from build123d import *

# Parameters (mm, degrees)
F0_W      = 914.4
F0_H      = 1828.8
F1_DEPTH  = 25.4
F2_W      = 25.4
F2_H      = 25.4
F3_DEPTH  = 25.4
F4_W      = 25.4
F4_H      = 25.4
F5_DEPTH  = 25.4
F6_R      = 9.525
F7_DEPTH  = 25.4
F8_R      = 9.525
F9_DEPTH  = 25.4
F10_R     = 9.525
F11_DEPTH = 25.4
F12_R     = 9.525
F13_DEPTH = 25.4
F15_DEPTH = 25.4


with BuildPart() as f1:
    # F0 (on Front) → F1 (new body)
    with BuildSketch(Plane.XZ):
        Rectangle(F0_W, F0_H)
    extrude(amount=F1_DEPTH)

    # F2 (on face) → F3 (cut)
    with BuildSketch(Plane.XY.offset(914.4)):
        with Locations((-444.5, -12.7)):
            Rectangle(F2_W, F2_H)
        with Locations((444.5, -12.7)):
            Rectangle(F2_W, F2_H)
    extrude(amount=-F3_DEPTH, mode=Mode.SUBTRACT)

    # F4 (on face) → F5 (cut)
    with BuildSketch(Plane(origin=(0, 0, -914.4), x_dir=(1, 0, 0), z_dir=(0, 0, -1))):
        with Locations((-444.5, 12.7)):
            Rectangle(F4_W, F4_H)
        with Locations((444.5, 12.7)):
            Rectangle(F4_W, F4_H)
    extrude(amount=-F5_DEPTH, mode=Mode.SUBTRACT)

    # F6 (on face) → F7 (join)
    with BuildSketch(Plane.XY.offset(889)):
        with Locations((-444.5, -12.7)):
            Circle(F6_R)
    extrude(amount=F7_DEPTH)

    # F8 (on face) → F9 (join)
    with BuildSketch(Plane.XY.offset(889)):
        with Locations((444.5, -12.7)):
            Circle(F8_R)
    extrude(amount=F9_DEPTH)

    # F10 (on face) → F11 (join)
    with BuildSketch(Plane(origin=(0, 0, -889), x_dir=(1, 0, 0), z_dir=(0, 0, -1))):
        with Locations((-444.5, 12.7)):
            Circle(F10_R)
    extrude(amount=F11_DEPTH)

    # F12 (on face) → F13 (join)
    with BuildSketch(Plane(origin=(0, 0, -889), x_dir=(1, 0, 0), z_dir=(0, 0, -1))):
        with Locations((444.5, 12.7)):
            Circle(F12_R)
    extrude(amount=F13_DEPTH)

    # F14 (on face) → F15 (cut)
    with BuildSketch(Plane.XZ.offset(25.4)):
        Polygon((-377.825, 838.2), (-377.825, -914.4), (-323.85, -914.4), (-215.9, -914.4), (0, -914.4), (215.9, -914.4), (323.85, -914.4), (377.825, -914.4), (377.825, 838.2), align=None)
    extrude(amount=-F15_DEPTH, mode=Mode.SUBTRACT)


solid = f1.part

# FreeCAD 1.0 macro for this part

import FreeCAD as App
import Part
import Sketcher

V = App.Vector
Q = App.Units.Quantity

doc = App.newDocument("Part")
body = doc.addObject("PartDesign::Body", "Body")

# Sketch on XZ plane
sketch1 = body.newObject("Sketcher::SketchObject", "Sketch")
sketch1.AttachmentSupport = (doc.getObject("XZ_Plane"), [""])
sketch1.MapMode = "FlatFace"
sketch1.addGeometry(Part.LineSegment(V(-457, 914, 0), V(-457, -914, 0)), False)
sketch1.addGeometry(Part.LineSegment(V(-457, -914, 0), V(457, -914, 0)), False)
sketch1.addGeometry(Part.LineSegment(V(457, -914, 0), V(457, 914, 0)), False)
sketch1.addGeometry(Part.LineSegment(V(457, 914, 0), V(-457, 914, 0)), False)
sketch1.addConstraint(Sketcher.Constraint("Coincident", 0, 2, 1, 1))
sketch1.addConstraint(Sketcher.Constraint("Coincident", 1, 2, 2, 1))
sketch1.addConstraint(Sketcher.Constraint("Coincident", 2, 2, 3, 1))
sketch1.addConstraint(Sketcher.Constraint("Coincident", 3, 2, 0, 1))
sketch1.addConstraint(Sketcher.Constraint("Vertical", 0))
sketch1.addConstraint(Sketcher.Constraint("Horizontal", 1))
sketch1.addConstraint(Sketcher.Constraint("Vertical", 2))
sketch1.addConstraint(Sketcher.Constraint("Horizontal", 3))
sketch1.addConstraint(Sketcher.Constraint("Symmetric", 0, 2, 2, 2, -1, 1))
sketch1.addConstraint(Sketcher.Constraint("DistanceX", 1, 1, 1, 2, Q("36 in")))
sketch1.addConstraint(Sketcher.Constraint("DistanceY", 0, 2, 0, 1, Q("72 in")))
pad1 = body.newObject("PartDesign::Pad", "Pad")
pad1.Profile = sketch1
pad1.Length = Q("1 in")

# Sketch on XY plane
sketch2 = body.newObject("Sketcher::SketchObject", "Sketch001")
sketch2.AttachmentSupport = (doc.getObject("XY_Plane"), [""])
sketch2.MapMode = "FlatFace"
sketch2.AttachmentOffset = App.Placement(V(0, 0, 36 * 25.4), App.Rotation())
sketch2.addGeometry(Part.LineSegment(V(-457, 0, 0), V(-457, -25, 0)), False)
sketch2.addGeometry(Part.LineSegment(V(-457, -25, 0), V(-432, -25, 0)), False)
sketch2.addGeometry(Part.LineSegment(V(-432, -25, 0), V(-432, 0, 0)), False)
sketch2.addGeometry(Part.LineSegment(V(-432, 0, 0), V(-457, 0, 0)), False)
sketch2.addGeometry(Part.LineSegment(V(432, 0, 0), V(432, -25, 0)), False)
sketch2.addGeometry(Part.LineSegment(V(432, -25, 0), V(457, -25, 0)), False)
sketch2.addGeometry(Part.LineSegment(V(457, -25, 0), V(457, 0, 0)), False)
sketch2.addGeometry(Part.LineSegment(V(457, 0, 0), V(432, 0, 0)), False)
sketch2.addConstraint(Sketcher.Constraint("Coincident", 0, 2, 1, 1))
sketch2.addConstraint(Sketcher.Constraint("Coincident", 1, 2, 2, 1))
sketch2.addConstraint(Sketcher.Constraint("Coincident", 2, 2, 3, 1))
sketch2.addConstraint(Sketcher.Constraint("Coincident", 3, 2, 0, 1))
sketch2.addConstraint(Sketcher.Constraint("Coincident", 4, 2, 5, 1))
sketch2.addConstraint(Sketcher.Constraint("Coincident", 5, 2, 6, 1))
sketch2.addConstraint(Sketcher.Constraint("Coincident", 6, 2, 7, 1))
sketch2.addConstraint(Sketcher.Constraint("Coincident", 7, 2, 4, 1))
sketch2.addConstraint(Sketcher.Constraint("Vertical", 0))
sketch2.addConstraint(Sketcher.Constraint("Horizontal", 1))
sketch2.addConstraint(Sketcher.Constraint("Vertical", 2))
sketch2.addConstraint(Sketcher.Constraint("Horizontal", 3))
sketch2.addConstraint(Sketcher.Constraint("Vertical", 4))
sketch2.addConstraint(Sketcher.Constraint("Horizontal", 5))
sketch2.addConstraint(Sketcher.Constraint("Vertical", 6))
sketch2.addConstraint(Sketcher.Constraint("Horizontal", 7))
sketch2.addConstraint(Sketcher.Constraint("Symmetric", 3, 2, 6, 2, -1, 1))
sketch2.addConstraint(Sketcher.Constraint("Symmetric", 1, 2, 4, 2, -2))
sketch2.addConstraint(Sketcher.Constraint("PointOnObject", 2, 2, -1))
sketch2.addConstraint(Sketcher.Constraint("Equal", 7, 0))
sketch2.addConstraint(Sketcher.Constraint("DistanceX", 1, 1, 1, 2, Q("1 in")))
sketch2.addConstraint(Sketcher.Constraint("DistanceX", 0, 2, -1, 1, Q("18 in")))
pocket1 = body.newObject("PartDesign::Pocket", "Pocket")
pocket1.Profile = sketch2
pocket1.Length = Q("1 in")

# Sketch on XY plane
sketch3 = body.newObject("Sketcher::SketchObject", "Sketch002")
sketch3.AttachmentSupport = (doc.getObject("XY_Plane"), [""])
sketch3.MapMode = "FlatFace"
sketch3.AttachmentOffset = App.Placement(V(0, 0, -36 * 25.4), App.Rotation())
sketch3.addGeometry(Part.LineSegment(V(-457, -25, 0), V(-457, 0, 0)), False)
sketch3.addGeometry(Part.LineSegment(V(-457, 0, 0), V(-432, 0, 0)), False)
sketch3.addGeometry(Part.LineSegment(V(-432, 0, 0), V(-432, -25, 0)), False)
sketch3.addGeometry(Part.LineSegment(V(-432, -25, 0), V(-457, -25, 0)), False)
sketch3.addGeometry(Part.LineSegment(V(432, -25, 0), V(432, 0, 0)), False)
sketch3.addGeometry(Part.LineSegment(V(432, 0, 0), V(457, 0, 0)), False)
sketch3.addGeometry(Part.LineSegment(V(457, 0, 0), V(457, -25, 0)), False)
sketch3.addGeometry(Part.LineSegment(V(457, -25, 0), V(432, -25, 0)), False)
sketch3.addConstraint(Sketcher.Constraint("Coincident", 0, 2, 1, 1))
sketch3.addConstraint(Sketcher.Constraint("Coincident", 1, 2, 2, 1))
sketch3.addConstraint(Sketcher.Constraint("Coincident", 2, 2, 3, 1))
sketch3.addConstraint(Sketcher.Constraint("Coincident", 3, 2, 0, 1))
sketch3.addConstraint(Sketcher.Constraint("Coincident", 4, 2, 5, 1))
sketch3.addConstraint(Sketcher.Constraint("Coincident", 5, 2, 6, 1))
sketch3.addConstraint(Sketcher.Constraint("Coincident", 6, 2, 7, 1))
sketch3.addConstraint(Sketcher.Constraint("Coincident", 7, 2, 4, 1))
sketch3.addConstraint(Sketcher.Constraint("Vertical", 0))
sketch3.addConstraint(Sketcher.Constraint("Horizontal", 1))
sketch3.addConstraint(Sketcher.Constraint("Vertical", 2))
sketch3.addConstraint(Sketcher.Constraint("Horizontal", 3))
sketch3.addConstraint(Sketcher.Constraint("Vertical", 4))
sketch3.addConstraint(Sketcher.Constraint("Horizontal", 5))
sketch3.addConstraint(Sketcher.Constraint("Vertical", 6))
sketch3.addConstraint(Sketcher.Constraint("Horizontal", 7))
sketch3.addConstraint(Sketcher.Constraint("Symmetric", 1, 2, 4, 2, -1, 1))
sketch3.addConstraint(Sketcher.Constraint("Symmetric", 0, 2, 5, 2, -2))
sketch3.addConstraint(Sketcher.Constraint("Horizontal", 3, 2, 6, 2))
sketch3.addConstraint(Sketcher.Constraint("Equal", 7, 0))
sketch3.addConstraint(Sketcher.Constraint("DistanceX", 1, 1, 1, 2, Q("1 in")))
sketch3.addConstraint(Sketcher.Constraint("DistanceX", 0, 2, -1, 1, Q("18 in")))
pocket2 = body.newObject("PartDesign::Pocket", "Pocket001")
pocket2.Profile = sketch3
pocket2.Length = Q("1 in")
pocket2.Reversed = True

# Sketch on XY plane
sketch4 = body.newObject("Sketcher::SketchObject", "Sketch003")
sketch4.AttachmentSupport = (doc.getObject("XY_Plane"), [""])
sketch4.MapMode = "FlatFace"
sketch4.AttachmentOffset = App.Placement(V(0, 0, 35 * 25.4), App.Rotation())
sketch4.addGeometry(Part.Circle(V(-444, -13, 0), V(0, 0, 1), 10), False)
sketch4.addConstraint(Sketcher.Constraint("Diameter", 0, Q("0.75 in")))
sketch4.addConstraint(Sketcher.Constraint("DistanceX", 0, 3, -1, 1, Q("17.5 in")))
sketch4.addConstraint(Sketcher.Constraint("DistanceY", 0, 3, -1, 1, Q("0.5 in")))
pad2 = body.newObject("PartDesign::Pad", "Pad001")
pad2.Profile = sketch4
pad2.Length = Q("1 in")

# Sketch on XY plane
sketch5 = body.newObject("Sketcher::SketchObject", "Sketch004")
sketch5.AttachmentSupport = (doc.getObject("XY_Plane"), [""])
sketch5.MapMode = "FlatFace"
sketch5.AttachmentOffset = App.Placement(V(0, 0, 35 * 25.4), App.Rotation())
sketch5.addGeometry(Part.Circle(V(444, -13, 0), V(0, 0, 1), 10), False)
sketch5.addConstraint(Sketcher.Constraint("Diameter", 0, Q("0.75 in")))
sketch5.addConstraint(Sketcher.Constraint("DistanceX", -1, 1, 0, 3, Q("17.5 in")))
sketch5.addConstraint(Sketcher.Constraint("DistanceY", 0, 3, -1, 1, Q("0.5 in")))
pad3 = body.newObject("PartDesign::Pad", "Pad002")
pad3.Profile = sketch5
pad3.Length = Q("1 in")

# Sketch on XY plane
sketch6 = body.newObject("Sketcher::SketchObject", "Sketch005")
sketch6.AttachmentSupport = (doc.getObject("XY_Plane"), [""])
sketch6.MapMode = "FlatFace"
sketch6.AttachmentOffset = App.Placement(V(0, 0, -35 * 25.4), App.Rotation())
sketch6.addGeometry(Part.Circle(V(-444, -13, 0), V(0, 0, 1), 10), False)
sketch6.addConstraint(Sketcher.Constraint("Diameter", 0, Q("0.75 in")))
sketch6.addConstraint(Sketcher.Constraint("DistanceX", 0, 3, -1, 1, Q("17.5 in")))
sketch6.addConstraint(Sketcher.Constraint("DistanceY", 0, 3, -1, 1, Q("0.5 in")))
pad4 = body.newObject("PartDesign::Pad", "Pad003")
pad4.Profile = sketch6
pad4.Length = Q("1 in")
pad4.Reversed = True

# Sketch on XY plane
sketch7 = body.newObject("Sketcher::SketchObject", "Sketch006")
sketch7.AttachmentSupport = (doc.getObject("XY_Plane"), [""])
sketch7.MapMode = "FlatFace"
sketch7.AttachmentOffset = App.Placement(V(0, 0, -35 * 25.4), App.Rotation())
sketch7.addGeometry(Part.Circle(V(444, -13, 0), V(0, 0, 1), 10), False)
sketch7.addConstraint(Sketcher.Constraint("Diameter", 0, Q("0.75 in")))
sketch7.addConstraint(Sketcher.Constraint("DistanceX", -1, 1, 0, 3, Q("17.5 in")))
sketch7.addConstraint(Sketcher.Constraint("DistanceY", 0, 3, -1, 1, Q("0.5 in")))
pad5 = body.newObject("PartDesign::Pad", "Pad004")
pad5.Profile = sketch7
pad5.Length = Q("1 in")
pad5.Reversed = True

# Sketch on XZ plane
sketch8 = body.newObject("Sketcher::SketchObject", "Sketch007")
sketch8.AttachmentSupport = (doc.getObject("XZ_Plane"), [""])
sketch8.MapMode = "FlatFace"
sketch8.AttachmentOffset = App.Placement(V(0, 0, 1 * 25.4), App.Rotation())
sketch8.addGeometry(Part.LineSegment(V(-378, 838, 0), V(-378, -914, 0)), False)
sketch8.addGeometry(Part.LineSegment(V(-378, -914, 0), V(378, -914, 0)), False)
sketch8.addGeometry(Part.LineSegment(V(378, -914, 0), V(378, 838, 0)), False)
sketch8.addGeometry(Part.LineSegment(V(378, 838, 0), V(-378, 838, 0)), False)
sketch8.addConstraint(Sketcher.Constraint("Coincident", 0, 2, 1, 1))
sketch8.addConstraint(Sketcher.Constraint("Coincident", 1, 2, 2, 1))
sketch8.addConstraint(Sketcher.Constraint("Coincident", 2, 2, 3, 1))
sketch8.addConstraint(Sketcher.Constraint("Coincident", 3, 2, 0, 1))
sketch8.addConstraint(Sketcher.Constraint("Vertical", 0))
sketch8.addConstraint(Sketcher.Constraint("Horizontal", 1))
sketch8.addConstraint(Sketcher.Constraint("Vertical", 2))
sketch8.addConstraint(Sketcher.Constraint("Horizontal", 3))
sketch8.addConstraint(Sketcher.Constraint("DistanceY", 0, 2, 0, 1, Q("69 in")))
sketch8.addConstraint(Sketcher.Constraint("DistanceY", 0, 2, -1, 1, Q("36 in")))
sketch8.addConstraint(Sketcher.Constraint("DistanceX", 1, 1, 1, 2, Q("29.75 in")))
sketch8.addConstraint(Sketcher.Constraint("DistanceX", 0, 2, -1, 1, Q("14.875 in")))
pocket3 = body.newObject("PartDesign::Pocket", "Pocket002")
pocket3.Profile = sketch8
pocket3.Length = Q("1 in")

doc.recompute()
